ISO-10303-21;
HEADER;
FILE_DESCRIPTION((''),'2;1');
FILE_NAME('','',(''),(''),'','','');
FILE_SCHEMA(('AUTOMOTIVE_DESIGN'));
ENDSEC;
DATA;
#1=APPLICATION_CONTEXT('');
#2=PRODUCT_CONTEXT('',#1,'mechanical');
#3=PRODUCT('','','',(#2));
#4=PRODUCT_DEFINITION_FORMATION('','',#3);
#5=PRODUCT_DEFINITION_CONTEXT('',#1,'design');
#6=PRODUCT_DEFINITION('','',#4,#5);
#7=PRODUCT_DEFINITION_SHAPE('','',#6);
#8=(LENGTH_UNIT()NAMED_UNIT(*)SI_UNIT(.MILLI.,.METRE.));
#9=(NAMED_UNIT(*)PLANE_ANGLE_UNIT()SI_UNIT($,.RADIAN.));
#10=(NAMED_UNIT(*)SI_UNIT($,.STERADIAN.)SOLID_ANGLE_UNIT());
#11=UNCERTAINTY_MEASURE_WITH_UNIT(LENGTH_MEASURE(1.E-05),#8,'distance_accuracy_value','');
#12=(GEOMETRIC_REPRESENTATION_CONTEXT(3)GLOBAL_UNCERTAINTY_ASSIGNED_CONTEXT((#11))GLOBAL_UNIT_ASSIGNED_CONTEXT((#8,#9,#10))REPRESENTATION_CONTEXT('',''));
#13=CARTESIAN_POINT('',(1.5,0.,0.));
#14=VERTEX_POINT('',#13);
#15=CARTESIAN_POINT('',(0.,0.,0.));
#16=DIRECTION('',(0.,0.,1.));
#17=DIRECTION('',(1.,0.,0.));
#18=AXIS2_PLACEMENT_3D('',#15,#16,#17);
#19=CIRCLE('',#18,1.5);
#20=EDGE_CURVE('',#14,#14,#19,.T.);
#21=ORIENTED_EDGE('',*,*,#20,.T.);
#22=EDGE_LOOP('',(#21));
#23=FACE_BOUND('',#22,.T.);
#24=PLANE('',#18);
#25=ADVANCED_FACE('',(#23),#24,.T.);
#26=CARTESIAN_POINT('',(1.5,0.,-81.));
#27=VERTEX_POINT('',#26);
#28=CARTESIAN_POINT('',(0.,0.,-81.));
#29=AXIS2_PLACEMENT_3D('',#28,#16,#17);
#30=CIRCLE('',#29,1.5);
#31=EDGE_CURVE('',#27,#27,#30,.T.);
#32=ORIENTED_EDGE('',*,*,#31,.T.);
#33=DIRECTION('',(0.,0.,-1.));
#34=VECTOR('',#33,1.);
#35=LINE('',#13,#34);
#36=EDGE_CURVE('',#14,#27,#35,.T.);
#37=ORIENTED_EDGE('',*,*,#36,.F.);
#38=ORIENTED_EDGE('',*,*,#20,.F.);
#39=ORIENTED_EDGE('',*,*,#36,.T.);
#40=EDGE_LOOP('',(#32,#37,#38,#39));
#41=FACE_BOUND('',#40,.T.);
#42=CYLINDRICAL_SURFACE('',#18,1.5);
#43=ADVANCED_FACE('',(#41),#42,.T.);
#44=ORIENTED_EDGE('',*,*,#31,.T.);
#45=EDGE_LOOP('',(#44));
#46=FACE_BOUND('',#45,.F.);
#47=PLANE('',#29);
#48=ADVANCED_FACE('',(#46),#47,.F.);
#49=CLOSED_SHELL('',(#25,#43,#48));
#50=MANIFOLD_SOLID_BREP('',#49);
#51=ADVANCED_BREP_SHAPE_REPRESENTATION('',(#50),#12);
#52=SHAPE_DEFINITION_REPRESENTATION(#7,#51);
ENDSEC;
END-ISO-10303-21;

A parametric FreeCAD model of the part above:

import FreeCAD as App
import Part
import Sketcher

doc = App.newDocument("Part")
body = doc.addObject("PartDesign::Body", "Body")

# Sketch on XY plane
sketch1 = doc.addObject("Sketcher::SketchObject", "Sketch")
body.addObject(sketch1)
sketch1.AttachmentSupport = (doc.XY_Plane, [""])
sketch1.MapMode = "FlatFace"
sketch1.addGeometry(Part.Circle(App.Vector(0, 0, 0), App.Vector(0, 0, 1), 1.5), False)
sketch1.addConstraint([
    Sketcher.Constraint("Coincident", 0, 3, -1, 1),
    Sketcher.Constraint("Diameter", 0, 3.0),
])
pad1 = doc.addObject("PartDesign::Pad", "Pad")
body.addObject(pad1)
pad1.Profile = sketch1
pad1.Length = 81
pad1.Reversed = True

doc.recompute()
